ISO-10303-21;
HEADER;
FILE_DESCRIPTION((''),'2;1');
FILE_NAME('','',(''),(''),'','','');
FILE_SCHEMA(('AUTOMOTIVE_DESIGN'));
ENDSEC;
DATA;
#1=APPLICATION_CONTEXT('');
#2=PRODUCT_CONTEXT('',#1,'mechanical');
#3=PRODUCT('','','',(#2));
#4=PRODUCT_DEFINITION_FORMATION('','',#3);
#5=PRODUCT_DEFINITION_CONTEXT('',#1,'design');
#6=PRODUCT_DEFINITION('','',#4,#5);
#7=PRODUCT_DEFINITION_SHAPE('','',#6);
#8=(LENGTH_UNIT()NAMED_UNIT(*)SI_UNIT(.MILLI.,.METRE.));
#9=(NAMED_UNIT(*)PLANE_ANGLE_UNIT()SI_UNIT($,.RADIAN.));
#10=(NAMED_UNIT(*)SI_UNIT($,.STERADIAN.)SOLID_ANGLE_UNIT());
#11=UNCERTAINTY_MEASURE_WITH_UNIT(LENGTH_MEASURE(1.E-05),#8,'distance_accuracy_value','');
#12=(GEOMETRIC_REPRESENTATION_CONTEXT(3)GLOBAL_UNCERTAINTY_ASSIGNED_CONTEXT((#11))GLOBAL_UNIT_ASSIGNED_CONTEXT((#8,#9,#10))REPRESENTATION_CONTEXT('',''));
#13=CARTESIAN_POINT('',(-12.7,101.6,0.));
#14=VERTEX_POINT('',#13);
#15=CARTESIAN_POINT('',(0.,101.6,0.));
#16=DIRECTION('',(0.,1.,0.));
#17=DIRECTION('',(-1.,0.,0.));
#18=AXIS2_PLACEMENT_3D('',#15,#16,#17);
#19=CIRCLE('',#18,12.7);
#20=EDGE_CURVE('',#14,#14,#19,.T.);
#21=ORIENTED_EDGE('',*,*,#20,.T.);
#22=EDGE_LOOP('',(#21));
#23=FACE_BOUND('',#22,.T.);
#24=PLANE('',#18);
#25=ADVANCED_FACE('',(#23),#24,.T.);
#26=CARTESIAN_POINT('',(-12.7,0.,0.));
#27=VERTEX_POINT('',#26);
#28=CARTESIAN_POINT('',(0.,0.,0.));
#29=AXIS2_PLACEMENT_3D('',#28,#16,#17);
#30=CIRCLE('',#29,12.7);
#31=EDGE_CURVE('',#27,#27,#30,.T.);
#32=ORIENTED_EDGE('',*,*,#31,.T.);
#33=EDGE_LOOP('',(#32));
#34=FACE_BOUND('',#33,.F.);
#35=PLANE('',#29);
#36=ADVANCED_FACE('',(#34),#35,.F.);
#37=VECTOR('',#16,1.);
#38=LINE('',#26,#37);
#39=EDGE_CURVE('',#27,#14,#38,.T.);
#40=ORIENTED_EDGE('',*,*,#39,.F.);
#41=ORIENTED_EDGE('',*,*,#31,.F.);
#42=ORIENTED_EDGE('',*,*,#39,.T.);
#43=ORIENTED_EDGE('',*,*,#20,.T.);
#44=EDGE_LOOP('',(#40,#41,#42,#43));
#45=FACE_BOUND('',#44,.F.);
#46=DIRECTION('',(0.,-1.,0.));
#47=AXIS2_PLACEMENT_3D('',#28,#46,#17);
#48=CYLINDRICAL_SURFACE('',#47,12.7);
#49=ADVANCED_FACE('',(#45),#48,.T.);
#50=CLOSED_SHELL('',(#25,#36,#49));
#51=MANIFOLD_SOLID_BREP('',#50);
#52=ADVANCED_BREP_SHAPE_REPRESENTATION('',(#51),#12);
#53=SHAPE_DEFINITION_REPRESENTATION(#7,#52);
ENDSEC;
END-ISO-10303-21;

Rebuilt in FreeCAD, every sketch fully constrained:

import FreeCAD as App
import Part
import Sketcher

V = App.Vector
Q = App.Units.Quantity

doc = App.newDocument("Part")
body = doc.addObject("PartDesign::Body", "Body")

sketch1 = doc.addObject("Sketcher::SketchObject", "Sketch")
body.addObject(sketch1)
sketch1.AttachmentSupport = (doc.XZ_Plane, [""])
sketch1.MapMode = "FlatFace"
sketch1.addGeometry(Part.Circle(V(0, 0, 0), V(0, 0, 1), 12.7), False)
sketch1.addConstraint([
    Sketcher.Constraint("Coincident", 0, 3, -1, 1),
    Sketcher.Constraint("Diameter", 0, Q("1 in")),
])
pad1 = doc.addObject("PartDesign::Pad", "Pad")
body.addObject(pad1)
pad1.Profile = sketch1
pad1.Length = Q("4 in")
pad1.Reversed = True

doc.recompute()
